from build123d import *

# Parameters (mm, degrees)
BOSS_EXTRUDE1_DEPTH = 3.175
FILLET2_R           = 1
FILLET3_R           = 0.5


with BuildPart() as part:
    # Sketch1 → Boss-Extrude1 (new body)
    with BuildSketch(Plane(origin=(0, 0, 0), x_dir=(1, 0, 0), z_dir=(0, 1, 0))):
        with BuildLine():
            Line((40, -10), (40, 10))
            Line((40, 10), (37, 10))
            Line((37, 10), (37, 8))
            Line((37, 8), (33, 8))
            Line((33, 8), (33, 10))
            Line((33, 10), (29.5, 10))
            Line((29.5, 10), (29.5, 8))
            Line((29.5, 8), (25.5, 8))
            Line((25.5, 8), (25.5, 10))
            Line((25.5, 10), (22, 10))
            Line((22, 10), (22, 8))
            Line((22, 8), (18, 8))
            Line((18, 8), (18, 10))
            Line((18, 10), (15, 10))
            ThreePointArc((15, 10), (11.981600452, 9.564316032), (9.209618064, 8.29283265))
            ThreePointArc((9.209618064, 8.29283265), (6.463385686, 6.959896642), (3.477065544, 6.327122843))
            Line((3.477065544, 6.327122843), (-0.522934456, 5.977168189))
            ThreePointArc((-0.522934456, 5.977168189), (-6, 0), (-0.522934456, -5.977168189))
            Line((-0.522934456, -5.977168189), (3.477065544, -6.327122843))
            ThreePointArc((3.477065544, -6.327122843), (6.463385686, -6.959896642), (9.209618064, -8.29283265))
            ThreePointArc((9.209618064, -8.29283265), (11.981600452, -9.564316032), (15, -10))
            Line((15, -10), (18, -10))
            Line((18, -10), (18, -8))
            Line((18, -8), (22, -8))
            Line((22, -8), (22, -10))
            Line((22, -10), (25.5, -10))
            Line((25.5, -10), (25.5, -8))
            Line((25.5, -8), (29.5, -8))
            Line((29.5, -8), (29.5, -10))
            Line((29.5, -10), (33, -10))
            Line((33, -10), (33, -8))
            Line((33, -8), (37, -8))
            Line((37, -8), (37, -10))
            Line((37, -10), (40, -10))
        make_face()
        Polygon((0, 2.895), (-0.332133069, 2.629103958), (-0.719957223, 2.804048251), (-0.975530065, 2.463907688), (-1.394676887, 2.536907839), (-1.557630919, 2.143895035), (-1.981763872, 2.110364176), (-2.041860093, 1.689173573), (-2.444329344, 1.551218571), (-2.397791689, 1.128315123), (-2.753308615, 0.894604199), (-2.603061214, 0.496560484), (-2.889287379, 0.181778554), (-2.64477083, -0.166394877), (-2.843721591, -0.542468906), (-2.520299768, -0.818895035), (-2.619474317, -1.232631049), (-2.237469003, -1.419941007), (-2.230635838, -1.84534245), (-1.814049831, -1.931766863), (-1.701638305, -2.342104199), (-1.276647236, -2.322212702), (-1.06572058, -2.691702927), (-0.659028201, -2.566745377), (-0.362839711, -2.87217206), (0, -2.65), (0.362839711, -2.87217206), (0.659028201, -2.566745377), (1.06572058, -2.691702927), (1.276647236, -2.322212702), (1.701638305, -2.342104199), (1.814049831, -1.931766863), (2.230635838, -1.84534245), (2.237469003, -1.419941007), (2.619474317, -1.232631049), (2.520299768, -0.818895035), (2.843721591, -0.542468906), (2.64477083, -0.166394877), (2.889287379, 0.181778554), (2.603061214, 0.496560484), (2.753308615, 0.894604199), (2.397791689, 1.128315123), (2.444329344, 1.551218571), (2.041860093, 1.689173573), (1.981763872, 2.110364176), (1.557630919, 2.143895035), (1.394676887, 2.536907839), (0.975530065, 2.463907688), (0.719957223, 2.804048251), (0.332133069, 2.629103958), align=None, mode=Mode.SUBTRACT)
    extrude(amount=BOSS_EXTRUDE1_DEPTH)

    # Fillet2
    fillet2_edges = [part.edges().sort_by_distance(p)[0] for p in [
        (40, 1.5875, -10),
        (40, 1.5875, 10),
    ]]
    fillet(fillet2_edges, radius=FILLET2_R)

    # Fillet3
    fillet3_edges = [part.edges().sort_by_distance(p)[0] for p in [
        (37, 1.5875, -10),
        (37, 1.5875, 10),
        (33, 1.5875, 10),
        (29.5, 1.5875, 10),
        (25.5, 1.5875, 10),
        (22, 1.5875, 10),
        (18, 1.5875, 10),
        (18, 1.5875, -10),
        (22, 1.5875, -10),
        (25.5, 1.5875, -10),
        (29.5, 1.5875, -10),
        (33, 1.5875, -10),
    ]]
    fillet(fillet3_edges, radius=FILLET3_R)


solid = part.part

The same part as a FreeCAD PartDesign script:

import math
import FreeCAD as App
import Part
import Sketcher

V = App.Vector
Q = App.Units.Quantity


def edges_at(feature, points):
    """Names of the edges that pass closest to the given points."""
    edges = feature.Shape.Edges
    near = lambda p: min(range(len(edges)), key=lambda i: edges[i].distToShape(Part.Vertex(*p))[0])
    return sorted({f"Edge{near(p) + 1}" for p in points})

doc = App.newDocument("Part")
body = doc.addObject("PartDesign::Body", "Body")

sketch1 = body.newObject("Sketcher::SketchObject", "Sketch")
sketch1.AttachmentSupport = (doc.getObject("XZ_Plane"), [""])
sketch1.MapMode = "FlatFace"
sketch1.addGeometry([
    Part.LineSegment(V(40, 10, 0), V(40, -10, 0)),
    Part.LineSegment(V(40, -10, 0), V(37, -10, 0)),
    Part.LineSegment(V(37, -10, 0), V(37, -8, 0)),
    Part.LineSegment(V(37, -8, 0), V(33, -8, 0)),
    Part.LineSegment(V(33, -8, 0), V(33, -10, 0)),
    Part.LineSegment(V(33, -10, 0), V(29.5, -10, 0)),
    Part.LineSegment(V(29.5, -10, 0), V(29.5, -8, 0)),
    Part.LineSegment(V(29.5, -8, 0), V(25.5, -8, 0)),
    Part.LineSegment(V(25.5, -8, 0), V(25.5, -10, 0)),
    Part.LineSegment(V(25.5, -10, 0), V(22, -10, 0)),
    Part.LineSegment(V(22, -10, 0), V(22, -8, 0)),
    Part.LineSegment(V(22, -8, 0), V(18, -8, 0)),
    Part.LineSegment(V(18, -8, 0), V(18, -10, 0)),
    Part.LineSegment(V(18, -10, 0), V(15, -10, 0)),
    Part.ArcOfCircle(Part.Circle(V(15, 0.67, 0), V(0, 0, 1), 10.67), math.radians(-123), math.radians(-90)),
    Part.ArcOfCircle(Part.Circle(V(2.38, -18.87, 0), V(0, 0, 1), 12.59), math.radians(57), math.radians(85)),
    Part.LineSegment(V(3.48, -6.33, 0), V(-0.52, -5.98, 0)),
    Part.ArcOfCircle(Part.Circle(V(0, 0, 0), V(0, 0, 1), 6), math.radians(95), math.radians(265)),
    Part.LineSegment(V(-0.52, 5.98, 0), V(3.48, 6.33, 0)),
    Part.ArcOfCircle(Part.Circle(V(2.38, 18.87, 0), V(0, 0, 1), 12.59), math.radians(-85), math.radians(-57)),
    Part.ArcOfCircle(Part.Circle(V(15, -0.67, 0), V(0, 0, 1), 10.67), math.radians(90), math.radians(123)),
    Part.LineSegment(V(15, 10, 0), V(18, 10, 0)),
    Part.LineSegment(V(18, 10, 0), V(18, 8, 0)),
    Part.LineSegment(V(18, 8, 0), V(22, 8, 0)),
    Part.LineSegment(V(22, 8, 0), V(22, 10, 0)),
    Part.LineSegment(V(22, 10, 0), V(25.5, 10, 0)),
    Part.LineSegment(V(25.5, 10, 0), V(25.5, 8, 0)),
    Part.LineSegment(V(25.5, 8, 0), V(29.5, 8, 0)),
    Part.LineSegment(V(29.5, 8, 0), V(29.5, 10, 0)),
    Part.LineSegment(V(29.5, 10, 0), V(33, 10, 0)),
    Part.LineSegment(V(33, 10, 0), V(33, 8, 0)),
    Part.LineSegment(V(33, 8, 0), V(37, 8, 0)),
    Part.LineSegment(V(37, 8, 0), V(37, 10, 0)),
    Part.LineSegment(V(37, 10, 0), V(40, 10, 0)),
    Part.LineSegment(V(-0.33, -2.63, 0), V(0, -2.9, 0)),
    Part.LineSegment(V(0, -2.9, 0), V(0.33, -2.63, 0)),
    Part.LineSegment(V(0.33, -2.63, 0), V(0.72, -2.8, 0)),
    Part.LineSegment(V(0.72, -2.8, 0), V(0.98, -2.46, 0)),
    Part.LineSegment(V(0.98, -2.46, 0), V(1.39, -2.54, 0)),
    Part.LineSegment(V(1.39, -2.54, 0), V(1.56, -2.14, 0)),
    Part.LineSegment(V(1.56, -2.14, 0), V(1.98, -2.11, 0)),
    Part.LineSegment(V(1.98, -2.11, 0), V(2.04, -1.69, 0)),
    Part.LineSegment(V(2.04, -1.69, 0), V(2.44, -1.55, 0)),
    Part.LineSegment(V(2.44, -1.55, 0), V(2.4, -1.13, 0)),
    Part.LineSegment(V(2.4, -1.13, 0), V(2.75, -0.89, 0)),
    Part.LineSegment(V(2.75, -0.89, 0), V(2.6, -0.5, 0)),
    Part.LineSegment(V(2.6, -0.5, 0), V(2.89, -0.18, 0)),
    Part.LineSegment(V(2.89, -0.18, 0), V(2.64, 0.17, 0)),
    Part.LineSegment(V(2.64, 0.17, 0), V(2.84, 0.54, 0)),
    Part.LineSegment(V(2.84, 0.54, 0), V(2.52, 0.82, 0)),
    Part.LineSegment(V(2.52, 0.82, 0), V(2.62, 1.23, 0)),
    Part.LineSegment(V(2.62, 1.23, 0), V(2.24, 1.42, 0)),
    Part.LineSegment(V(2.24, 1.42, 0), V(2.23, 1.85, 0)),
    Part.LineSegment(V(2.23, 1.85, 0), V(1.81, 1.93, 0)),
    Part.LineSegment(V(1.81, 1.93, 0), V(1.7, 2.34, 0)),
    Part.LineSegment(V(1.7, 2.34, 0), V(1.28, 2.32, 0)),
    Part.LineSegment(V(1.28, 2.32, 0), V(1.07, 2.69, 0)),
    Part.LineSegment(V(1.07, 2.69, 0), V(0.66, 2.57, 0)),
    Part.LineSegment(V(0.66, 2.57, 0), V(0.36, 2.87, 0)),
    Part.LineSegment(V(0.36, 2.87, 0), V(0, 2.65, 0)),
    Part.LineSegment(V(0, 2.65, 0), V(-0.36, 2.87, 0)),
    Part.LineSegment(V(-0.36, 2.87, 0), V(-0.66, 2.57, 0)),
    Part.LineSegment(V(-0.66, 2.57, 0), V(-1.07, 2.69, 0)),
    Part.LineSegment(V(-1.07, 2.69, 0), V(-1.28, 2.32, 0)),
    Part.LineSegment(V(-1.28, 2.32, 0), V(-1.7, 2.34, 0)),
    Part.LineSegment(V(-1.7, 2.34, 0), V(-1.81, 1.93, 0)),
    Part.LineSegment(V(-1.81, 1.93, 0), V(-2.23, 1.85, 0)),
    Part.LineSegment(V(-2.23, 1.85, 0), V(-2.24, 1.42, 0)),
    Part.LineSegment(V(-2.24, 1.42, 0), V(-2.62, 1.23, 0)),
    Part.LineSegment(V(-2.62, 1.23, 0), V(-2.52, 0.82, 0)),
    Part.LineSegment(V(-2.52, 0.82, 0), V(-2.84, 0.54, 0)),
    Part.LineSegment(V(-2.84, 0.54, 0), V(-2.64, 0.17, 0)),
    Part.LineSegment(V(-2.64, 0.17, 0), V(-2.89, -0.18, 0)),
    Part.LineSegment(V(-2.89, -0.18, 0), V(-2.6, -0.5, 0)),
    Part.LineSegment(V(-2.6, -0.5, 0), V(-2.75, -0.89, 0)),
    Part.LineSegment(V(-2.75, -0.89, 0), V(-2.4, -1.13, 0)),
    Part.LineSegment(V(-2.4, -1.13, 0), V(-2.44, -1.55, 0)),
    Part.LineSegment(V(-2.44, -1.55, 0), V(-2.04, -1.69, 0)),
    Part.LineSegment(V(-2.04, -1.69, 0), V(-1.98, -2.11, 0)),
    Part.LineSegment(V(-1.98, -2.11, 0), V(-1.56, -2.14, 0)),
    Part.LineSegment(V(-1.56, -2.14, 0), V(-1.39, -2.54, 0)),
    Part.LineSegment(V(-1.39, -2.54, 0), V(-0.98, -2.46, 0)),
    Part.LineSegment(V(-0.98, -2.46, 0), V(-0.72, -2.8, 0)),
    Part.LineSegment(V(-0.72, -2.8, 0), V(-0.33, -2.63, 0)),
], False)
sketch1.addConstraint([
    Sketcher.Constraint("Coincident", 0, 2, 1, 1),
    Sketcher.Constraint("Coincident", 1, 2, 2, 1),
    Sketcher.Constraint("Coincident", 2, 2, 3, 1),
    Sketcher.Constraint("Coincident", 3, 2, 4, 1),
    Sketcher.Constraint("Coincident", 4, 2, 5, 1),
    Sketcher.Constraint("Coincident", 5, 2, 6, 1),
    Sketcher.Constraint("Coincident", 6, 2, 7, 1),
    Sketcher.Constraint("Coincident", 7, 2, 8, 1),
    Sketcher.Constraint("Coincident", 8, 2, 9, 1),
    Sketcher.Constraint("Coincident", 9, 2, 10, 1),
    Sketcher.Constraint("Coincident", 10, 2, 11, 1),
    Sketcher.Constraint("Coincident", 11, 2, 12, 1),
    Sketcher.Constraint("Coincident", 12, 2, 13, 1),
    Sketcher.Constraint("Tangent", 13, 2, 14, 2),
    Sketcher.Constraint("Tangent", 14, 1, 15, 1),
    Sketcher.Constraint("Tangent", 15, 2, 16, 1),
    Sketcher.Constraint("Tangent", 16, 2, 17, 2),
    Sketcher.Constraint("Tangent", 17, 1, 18, 1),
    Sketcher.Constraint("Tangent", 18, 2, 19, 1),
    Sketcher.Constraint("Tangent", 19, 2, 20, 2),
    Sketcher.Constraint("Tangent", 20, 1, 21, 1),
    Sketcher.Constraint("Coincident", 21, 2, 22, 1),
    Sketcher.Constraint("Coincident", 22, 2, 23, 1),
    Sketcher.Constraint("Coincident", 23, 2, 24, 1),
    Sketcher.Constraint("Coincident", 24, 2, 25, 1),
    Sketcher.Constraint("Coincident", 25, 2, 26, 1),
    Sketcher.Constraint("Coincident", 26, 2, 27, 1),
    Sketcher.Constraint("Coincident", 27, 2, 28, 1),
    Sketcher.Constraint("Coincident", 28, 2, 29, 1),
    Sketcher.Constraint("Coincident", 29, 2, 30, 1),
    Sketcher.Constraint("Coincident", 30, 2, 31, 1),
    Sketcher.Constraint("Coincident", 31, 2, 32, 1),
    Sketcher.Constraint("Coincident", 32, 2, 33, 1),
    Sketcher.Constraint("Coincident", 33, 2, 0, 1),
    Sketcher.Constraint("Coincident", 34, 2, 35, 1),
    Sketcher.Constraint("Coincident", 35, 2, 36, 1),
    Sketcher.Constraint("Coincident", 36, 2, 37, 1),
    Sketcher.Constraint("Coincident", 37, 2, 38, 1),
    Sketcher.Constraint("Coincident", 38, 2, 39, 1),
    Sketcher.Constraint("Coincident", 39, 2, 40, 1),
    Sketcher.Constraint("Coincident", 40, 2, 41, 1),
    Sketcher.Constraint("Coincident", 41, 2, 42, 1),
    Sketcher.Constraint("Coincident", 42, 2, 43, 1),
    Sketcher.Constraint("Coincident", 43, 2, 44, 1),
    Sketcher.Constraint("Coincident", 44, 2, 45, 1),
    Sketcher.Constraint("Coincident", 45, 2, 46, 1),
    Sketcher.Constraint("Coincident", 46, 2, 47, 1),
    Sketcher.Constraint("Coincident", 47, 2, 48, 1),
    Sketcher.Constraint("Coincident", 48, 2, 49, 1),
    Sketcher.Constraint("Coincident", 49, 2, 50, 1),
    Sketcher.Constraint("Coincident", 50, 2, 51, 1),
    Sketcher.Constraint("Coincident", 51, 2, 52, 1),
    Sketcher.Constraint("Coincident", 52, 2, 53, 1),
    Sketcher.Constraint("Coincident", 53, 2, 54, 1),
    Sketcher.Constraint("Coincident", 54, 2, 55, 1),
    Sketcher.Constraint("Coincident", 55, 2, 56, 1),
    Sketcher.Constraint("Coincident", 56, 2, 57, 1),
    Sketcher.Constraint("Coincident", 57, 2, 58, 1),
    Sketcher.Constraint("Coincident", 58, 2, 59, 1),
    Sketcher.Constraint("Coincident", 59, 2, 60, 1),
    Sketcher.Constraint("Coincident", 60, 2, 61, 1),
    Sketcher.Constraint("Coincident", 61, 2, 62, 1),
    Sketcher.Constraint("Coincident", 62, 2, 63, 1),
    Sketcher.Constraint("Coincident", 63, 2, 64, 1),
    Sketcher.Constraint("Coincident", 64, 2, 65, 1),
    Sketcher.Constraint("Coincident", 65, 2, 66, 1),
    Sketcher.Constraint("Coincident", 66, 2, 67, 1),
    Sketcher.Constraint("Coincident", 67, 2, 68, 1),
    Sketcher.Constraint("Coincident", 68, 2, 69, 1),
    Sketcher.Constraint("Coincident", 69, 2, 70, 1),
    Sketcher.Constraint("Coincident", 70, 2, 71, 1),
    Sketcher.Constraint("Coincident", 71, 2, 72, 1),
    Sketcher.Constraint("Coincident", 72, 2, 73, 1),
    Sketcher.Constraint("Coincident", 73, 2, 74, 1),
    Sketcher.Constraint("Coincident", 74, 2, 75, 1),
    Sketcher.Constraint("Coincident", 75, 2, 76, 1),
    Sketcher.Constraint("Coincident", 76, 2, 77, 1),
    Sketcher.Constraint("Coincident", 77, 2, 78, 1),
    Sketcher.Constraint("Coincident", 78, 2, 79, 1),
    Sketcher.Constraint("Coincident", 79, 2, 80, 1),
    Sketcher.Constraint("Coincident", 80, 2, 81, 1),
    Sketcher.Constraint("Coincident", 81, 2, 82, 1),
    Sketcher.Constraint("Coincident", 82, 2, 83, 1),
    Sketcher.Constraint("Coincident", 83, 2, 34, 1),
    Sketcher.Constraint("Vertical", 0),
    Sketcher.Constraint("Horizontal", 1),
    Sketcher.Constraint("Vertical", 2),
    Sketcher.Constraint("Horizontal", 3),
    Sketcher.Constraint("Vertical", 4),
    Sketcher.Constraint("Horizontal", 5),
    Sketcher.Constraint("Vertical", 6),
    Sketcher.Constraint("Horizontal", 7),
    Sketcher.Constraint("Vertical", 8),
    Sketcher.Constraint("Horizontal", 9),
    Sketcher.Constraint("Vertical", 10),
    Sketcher.Constraint("Horizontal", 11),
    Sketcher.Constraint("Vertical", 12),
    Sketcher.Constraint("Horizontal", 13),
    Sketcher.Constraint("Horizontal", 21),
    Sketcher.Constraint("Vertical", 22),
    Sketcher.Constraint("Horizontal", 23),
    Sketcher.Constraint("Vertical", 24),
    Sketcher.Constraint("Horizontal", 25),
    Sketcher.Constraint("Vertical", 26),
    Sketcher.Constraint("Horizontal", 27),
    Sketcher.Constraint("Vertical", 28),
    Sketcher.Constraint("Horizontal", 29),
    Sketcher.Constraint("Vertical", 30),
    Sketcher.Constraint("Horizontal", 31),
    Sketcher.Constraint("Vertical", 32),
    Sketcher.Constraint("Horizontal", 33),
    Sketcher.Constraint("Coincident", 17, 3, -1, 1),
    Sketcher.Constraint("Equal", 15, 19),
    Sketcher.Constraint("Equal", 14, 20),
    Sketcher.Constraint("Symmetric", 58, 2, 60, 2, -2),
    Sketcher.Constraint("Symmetric", 57, 2, 61, 2, -2),
    Sketcher.Constraint("Symmetric", 56, 2, 62, 2, -2),
    Sketcher.Constraint("Symmetric", 55, 2, 63, 2, -2),
    Sketcher.Constraint("Symmetric", 54, 2, 64, 2, -2),
    Sketcher.Constraint("Symmetric", 53, 2, 65, 2, -2),
    Sketcher.Constraint("Symmetric", 52, 2, 66, 2, -2),
    Sketcher.Constraint("Symmetric", 51, 2, 67, 2, -2),
    Sketcher.Constraint("Symmetric", 50, 2, 68, 2, -2),
    Sketcher.Constraint("Symmetric", 49, 2, 69, 2, -2),
    Sketcher.Constraint("Symmetric", 48, 2, 70, 2, -2),
    Sketcher.Constraint("Symmetric", 47, 2, 71, 2, -2),
    Sketcher.Constraint("Symmetric", 46, 2, 72, 2, -2),
    Sketcher.Constraint("Symmetric", 45, 2, 73, 2, -2),
    Sketcher.Constraint("Symmetric", 44, 2, 74, 2, -2),
    Sketcher.Constraint("Symmetric", 43, 2, 75, 2, -2),
    Sketcher.Constraint("Symmetric", 42, 2, 76, 2, -2),
    Sketcher.Constraint("Symmetric", 41, 2, 77, 2, -2),
    Sketcher.Constraint("Symmetric", 40, 2, 78, 2, -2),
    Sketcher.Constraint("Symmetric", 39, 2, 79, 2, -2),
    Sketcher.Constraint("Symmetric", 38, 2, 80, 2, -2),
    Sketcher.Constraint("Symmetric", 37, 2, 81, 2, -2),
    Sketcher.Constraint("Symmetric", 36, 2, 82, 2, -2),
    Sketcher.Constraint("Symmetric", 35, 2, 83, 2, -2),
    Sketcher.Constraint("Symmetric", 15, 3, 19, 3, -1),
    Sketcher.Constraint("Symmetric", 12, 2, 21, 2, -1),
    Sketcher.Constraint("Symmetric", 10, 2, 23, 2, -1),
    Sketcher.Constraint("Symmetric", 8, 2, 25, 2, -1),
    Sketcher.Constraint("Symmetric", 6, 2, 27, 2, -1),
    Sketcher.Constraint("Symmetric", 4, 2, 29, 2, -1),
    Sketcher.Constraint("Symmetric", 2, 2, 31, 2, -1),
    Sketcher.Constraint("PointOnObject", 34, 2, -2),
    Sketcher.Constraint("PointOnObject", 59, 2, -2),
    Sketcher.Constraint("Horizontal", 1, 2, 4, 2),
    Sketcher.Constraint("Horizontal", 3, 2, 6, 2),
    Sketcher.Constraint("Horizontal", 5, 2, 8, 2),
    Sketcher.Constraint("Horizontal", 7, 2, 10, 2),
    Sketcher.Constraint("Horizontal", 9, 2, 12, 2),
    Sketcher.Constraint("Horizontal", 29, 2, 32, 2),
    Sketcher.Constraint("Equal", 3, 7),
    Sketcher.Constraint("Equal", 5, 9),
    Sketcher.Constraint("Equal", 7, 11),
    Sketcher.Constraint("Equal", 1, 13),
    Sketcher.Constraint("Equal", 35, 36),
    Sketcher.Constraint("Equal", 36, 37),
    Sketcher.Constraint("Equal", 37, 38),
    Sketcher.Constraint("Equal", 38, 39),
    Sketcher.Constraint("Equal", 39, 40),
    Sketcher.Constraint("Equal", 40, 41),
    Sketcher.Constraint("Equal", 41, 42),
    Sketcher.Constraint("Equal", 42, 43),
    Sketcher.Constraint("Equal", 43, 44),
    Sketcher.Constraint("Equal", 44, 45),
    Sketcher.Constraint("Equal", 45, 46),
    Sketcher.Constraint("Equal", 46, 47),
    Sketcher.Constraint("Equal", 47, 48),
    Sketcher.Constraint("Equal", 48, 49),
    Sketcher.Constraint("Equal", 49, 50),
    Sketcher.Constraint("Equal", 50, 51),
    Sketcher.Constraint("Equal", 51, 52),
    Sketcher.Constraint("Equal", 52, 53),
    Sketcher.Constraint("Equal", 53, 54),
    Sketcher.Constraint("Equal", 54, 55),
    Sketcher.Constraint("Equal", 55, 56),
    Sketcher.Constraint("Equal", 56, 57),
    Sketcher.Constraint("Equal", 57, 58),
    Sketcher.Constraint("Equal", 58, 59),
    Sketcher.Constraint("Radius", 17, Q("6 mm")),
    Sketcher.Constraint("DistanceX", 1, 2, 1, 1, Q("3 mm")),
    Sketcher.Constraint("DistanceX", 3, 2, 3, 1, Q("4 mm")),
    Sketcher.Constraint("DistanceY", 0, 2, 0, 1, Q("20 mm")),
    Sketcher.Constraint("DistanceY", 2, 1, 2, 2, Q("2 mm")),
    Sketcher.Constraint("Angle", 16, Q("175 deg")),
    Sketcher.Constraint("DistanceX", 5, 2, 5, 1, Q("3.5 mm")),
    Sketcher.Constraint("DistanceX", -1, 1, 14, 3, Q("15 mm")),
    Sketcher.Constraint("DistanceY", -1, 1, 59, 2, Q("2.65 mm")),
    Sketcher.Constraint("DistanceY", 34, 2, -1, 1, Q("2.895 mm")),
    Sketcher.Constraint("Radius", 14, Q("10.673512 mm")),
    Sketcher.Constraint("Radius", 15, Q("12.589487 mm")),
    Sketcher.Constraint("DistanceX", -1, 1, 49, 2, Q("2.5203 mm")),
    Sketcher.Constraint("DistanceY", 36, 2, -1, 1, Q("2.804048 mm")),
    Sketcher.Constraint("DistanceX", -1, 1, 37, 2, Q("0.97553 mm")),
    Sketcher.Constraint("DistanceX", -1, 1, 39, 2, Q("1.557631 mm")),
    Sketcher.Constraint("DistanceX", -1, 1, 41, 2, Q("2.04186 mm")),
    Sketcher.Constraint("DistanceX", -1, 1, 42, 2, Q("2.444329 mm")),
    Sketcher.Constraint("DistanceY", 42, 2, -1, 1, Q("1.551219 mm")),
    Sketcher.Constraint("DistanceX", -1, 1, 43, 2, Q("2.397792 mm")),
    Sketcher.Constraint("DistanceX", -1, 1, 44, 2, Q("2.753309 mm")),
    Sketcher.Constraint("DistanceX", -1, 1, 45, 2, Q("2.603061 mm")),
    Sketcher.Constraint("DistanceY", 45, 2, -1, 1, Q("0.49656 mm")),
    Sketcher.Constraint("DistanceY", 46, 2, -1, 1, Q("0.181779 mm")),
    Sketcher.Constraint("DistanceX", -1, 1, 47, 2, Q("2.644771 mm")),
    Sketcher.Constraint("DistanceX", -1, 1, 48, 2, Q("2.843722 mm")),
    Sketcher.Constraint("DistanceY", -1, 1, 50, 2, Q("1.232631 mm")),
    Sketcher.Constraint("DistanceX", -1, 1, 51, 2, Q("2.237469 mm")),
    Sketcher.Constraint("DistanceX", -1, 1, 53, 2, Q("1.81405 mm")),
    Sketcher.Constraint("DistanceX", -1, 1, 54, 2, Q("1.701638 mm")),
    Sketcher.Constraint("DistanceX", -1, 1, 56, 2, Q("1.065721 mm")),
    Sketcher.Constraint("DistanceX", -1, 1, 57, 2, Q("0.659028 mm")),
    Sketcher.Constraint("DistanceX", -1, 1, 58, 2, Q("0.36284 mm")),
    Sketcher.Constraint("DistanceX", -1, 1, 35, 2, Q("0.332133 mm")),
    Sketcher.Constraint("DistanceX", -1, 1, 38, 2, Q("1.394677 mm")),
    Sketcher.Constraint("DistanceX", -1, 1, 52, 2, Q("2.230636 mm")),
])
pad1 = body.newObject("PartDesign::Pad", "Pad")
pad1.Profile = sketch1
pad1.Length = 3.175
pad1.Reversed = True
doc.recompute()

fillet = body.newObject("PartDesign::Fillet", "Fillet")
fillet.Base = (pad1, edges_at(pad1, [(40, 1.587, -10), (40, 1.587, 10)]))
fillet.Radius = 1
doc.recompute()

fillet2 = body.newObject("PartDesign::Fillet", "Fillet001")
fillet2.Base = (fillet, edges_at(fillet, [
    (37, 1.587, -10),
    (37, 1.587, 10),
    (33, 1.587, 10),
    (29.5, 1.587, 10),
    (25.5, 1.587, 10),
    (22, 1.587, 10),
    (18, 1.587, 10),
    (18, 1.587, -10),
    (22, 1.587, -10),
    (25.5, 1.587, -10),
    (29.5, 1.587, -10),
    (33, 1.587, -10),
]))
fillet2.Radius = 0.5

doc.recompute()
